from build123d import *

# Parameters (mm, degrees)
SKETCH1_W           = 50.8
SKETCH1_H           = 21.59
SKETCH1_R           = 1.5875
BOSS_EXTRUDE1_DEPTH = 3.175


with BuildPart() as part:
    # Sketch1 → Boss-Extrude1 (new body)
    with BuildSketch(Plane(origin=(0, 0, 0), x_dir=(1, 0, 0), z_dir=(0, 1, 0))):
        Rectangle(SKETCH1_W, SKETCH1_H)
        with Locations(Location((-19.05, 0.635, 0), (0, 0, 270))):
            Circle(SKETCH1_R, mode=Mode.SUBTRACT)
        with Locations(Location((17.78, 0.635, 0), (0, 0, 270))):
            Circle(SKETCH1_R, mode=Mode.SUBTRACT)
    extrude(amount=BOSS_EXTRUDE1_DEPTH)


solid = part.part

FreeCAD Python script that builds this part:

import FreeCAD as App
import Part
import Sketcher

V = App.Vector
Q = App.Units.Quantity


def add_polygon(sketch, points):
    """Adds a closed chain of lines whose ends are joined by coincident constraints."""
    first, n = sketch.GeometryCount, len(points)
    for a, b in zip(points, points[1:] + points[:1]):
        sketch.addGeometry(Part.LineSegment(App.Vector(*a, 0), App.Vector(*b, 0)), False)
    for i in range(n):
        sketch.addConstraint(Sketcher.Constraint("Coincident", first + i, 2, first + (i + 1) % n, 1))

doc = App.newDocument("Part")
body = doc.addObject("PartDesign::Body", "Body")

# Sketch on XZ plane
sketch1 = body.newObject("Sketcher::SketchObject", "Sketch")
sketch1.AttachmentSupport = (doc.getObject("XZ_Plane"), [""])
sketch1.MapMode = "FlatFace"
add_polygon(sketch1, [(-25.4, -10.795), (-25.4, 10.795), (25.4, 10.795), (25.4, -10.795)])  # lines 0-3
sketch1.addGeometry(Part.Circle(V(-19.05, -0.635, 0), V(0, 0, 1), 1.5875), False)  # 4
sketch1.addGeometry(Part.Circle(V(17.78, -0.635, 0), V(0, 0, 1), 1.5875), False)  # 5
sketch1.addConstraint([
    Sketcher.Constraint("Vertical", 0),
    Sketcher.Constraint("Horizontal", 1),
    Sketcher.Constraint("Vertical", 2),
    Sketcher.Constraint("Horizontal", 3),
    Sketcher.Constraint("Equal", 4, 5),
    Sketcher.Constraint("Symmetric", 0, 2, 2, 2, -1, 1),
    Sketcher.Constraint("Horizontal", 4, 3, 5, 3),
    Sketcher.Constraint("DistanceX", 1, 1, 1, 2, Q("2 in")),
    Sketcher.Constraint("Diameter", 4, Q("0.125 in")),
    Sketcher.Constraint("DistanceY", 0, 1, 0, 2, Q("0.85 in")),
    Sketcher.Constraint("DistanceX", -1, 1, 5, 3, Q("0.7 in")),
    Sketcher.Constraint("DistanceY", 2, 2, 5, 3, Q("0.4 in")),
    Sketcher.Constraint("DistanceX", 4, 3, -1, 1, Q("0.75 in")),
])
pad1 = body.newObject("PartDesign::Pad", "Pad")
pad1.Profile = sketch1
pad1.Length = Q("0.125 in")
pad1.Reversed = True

doc.recompute()
